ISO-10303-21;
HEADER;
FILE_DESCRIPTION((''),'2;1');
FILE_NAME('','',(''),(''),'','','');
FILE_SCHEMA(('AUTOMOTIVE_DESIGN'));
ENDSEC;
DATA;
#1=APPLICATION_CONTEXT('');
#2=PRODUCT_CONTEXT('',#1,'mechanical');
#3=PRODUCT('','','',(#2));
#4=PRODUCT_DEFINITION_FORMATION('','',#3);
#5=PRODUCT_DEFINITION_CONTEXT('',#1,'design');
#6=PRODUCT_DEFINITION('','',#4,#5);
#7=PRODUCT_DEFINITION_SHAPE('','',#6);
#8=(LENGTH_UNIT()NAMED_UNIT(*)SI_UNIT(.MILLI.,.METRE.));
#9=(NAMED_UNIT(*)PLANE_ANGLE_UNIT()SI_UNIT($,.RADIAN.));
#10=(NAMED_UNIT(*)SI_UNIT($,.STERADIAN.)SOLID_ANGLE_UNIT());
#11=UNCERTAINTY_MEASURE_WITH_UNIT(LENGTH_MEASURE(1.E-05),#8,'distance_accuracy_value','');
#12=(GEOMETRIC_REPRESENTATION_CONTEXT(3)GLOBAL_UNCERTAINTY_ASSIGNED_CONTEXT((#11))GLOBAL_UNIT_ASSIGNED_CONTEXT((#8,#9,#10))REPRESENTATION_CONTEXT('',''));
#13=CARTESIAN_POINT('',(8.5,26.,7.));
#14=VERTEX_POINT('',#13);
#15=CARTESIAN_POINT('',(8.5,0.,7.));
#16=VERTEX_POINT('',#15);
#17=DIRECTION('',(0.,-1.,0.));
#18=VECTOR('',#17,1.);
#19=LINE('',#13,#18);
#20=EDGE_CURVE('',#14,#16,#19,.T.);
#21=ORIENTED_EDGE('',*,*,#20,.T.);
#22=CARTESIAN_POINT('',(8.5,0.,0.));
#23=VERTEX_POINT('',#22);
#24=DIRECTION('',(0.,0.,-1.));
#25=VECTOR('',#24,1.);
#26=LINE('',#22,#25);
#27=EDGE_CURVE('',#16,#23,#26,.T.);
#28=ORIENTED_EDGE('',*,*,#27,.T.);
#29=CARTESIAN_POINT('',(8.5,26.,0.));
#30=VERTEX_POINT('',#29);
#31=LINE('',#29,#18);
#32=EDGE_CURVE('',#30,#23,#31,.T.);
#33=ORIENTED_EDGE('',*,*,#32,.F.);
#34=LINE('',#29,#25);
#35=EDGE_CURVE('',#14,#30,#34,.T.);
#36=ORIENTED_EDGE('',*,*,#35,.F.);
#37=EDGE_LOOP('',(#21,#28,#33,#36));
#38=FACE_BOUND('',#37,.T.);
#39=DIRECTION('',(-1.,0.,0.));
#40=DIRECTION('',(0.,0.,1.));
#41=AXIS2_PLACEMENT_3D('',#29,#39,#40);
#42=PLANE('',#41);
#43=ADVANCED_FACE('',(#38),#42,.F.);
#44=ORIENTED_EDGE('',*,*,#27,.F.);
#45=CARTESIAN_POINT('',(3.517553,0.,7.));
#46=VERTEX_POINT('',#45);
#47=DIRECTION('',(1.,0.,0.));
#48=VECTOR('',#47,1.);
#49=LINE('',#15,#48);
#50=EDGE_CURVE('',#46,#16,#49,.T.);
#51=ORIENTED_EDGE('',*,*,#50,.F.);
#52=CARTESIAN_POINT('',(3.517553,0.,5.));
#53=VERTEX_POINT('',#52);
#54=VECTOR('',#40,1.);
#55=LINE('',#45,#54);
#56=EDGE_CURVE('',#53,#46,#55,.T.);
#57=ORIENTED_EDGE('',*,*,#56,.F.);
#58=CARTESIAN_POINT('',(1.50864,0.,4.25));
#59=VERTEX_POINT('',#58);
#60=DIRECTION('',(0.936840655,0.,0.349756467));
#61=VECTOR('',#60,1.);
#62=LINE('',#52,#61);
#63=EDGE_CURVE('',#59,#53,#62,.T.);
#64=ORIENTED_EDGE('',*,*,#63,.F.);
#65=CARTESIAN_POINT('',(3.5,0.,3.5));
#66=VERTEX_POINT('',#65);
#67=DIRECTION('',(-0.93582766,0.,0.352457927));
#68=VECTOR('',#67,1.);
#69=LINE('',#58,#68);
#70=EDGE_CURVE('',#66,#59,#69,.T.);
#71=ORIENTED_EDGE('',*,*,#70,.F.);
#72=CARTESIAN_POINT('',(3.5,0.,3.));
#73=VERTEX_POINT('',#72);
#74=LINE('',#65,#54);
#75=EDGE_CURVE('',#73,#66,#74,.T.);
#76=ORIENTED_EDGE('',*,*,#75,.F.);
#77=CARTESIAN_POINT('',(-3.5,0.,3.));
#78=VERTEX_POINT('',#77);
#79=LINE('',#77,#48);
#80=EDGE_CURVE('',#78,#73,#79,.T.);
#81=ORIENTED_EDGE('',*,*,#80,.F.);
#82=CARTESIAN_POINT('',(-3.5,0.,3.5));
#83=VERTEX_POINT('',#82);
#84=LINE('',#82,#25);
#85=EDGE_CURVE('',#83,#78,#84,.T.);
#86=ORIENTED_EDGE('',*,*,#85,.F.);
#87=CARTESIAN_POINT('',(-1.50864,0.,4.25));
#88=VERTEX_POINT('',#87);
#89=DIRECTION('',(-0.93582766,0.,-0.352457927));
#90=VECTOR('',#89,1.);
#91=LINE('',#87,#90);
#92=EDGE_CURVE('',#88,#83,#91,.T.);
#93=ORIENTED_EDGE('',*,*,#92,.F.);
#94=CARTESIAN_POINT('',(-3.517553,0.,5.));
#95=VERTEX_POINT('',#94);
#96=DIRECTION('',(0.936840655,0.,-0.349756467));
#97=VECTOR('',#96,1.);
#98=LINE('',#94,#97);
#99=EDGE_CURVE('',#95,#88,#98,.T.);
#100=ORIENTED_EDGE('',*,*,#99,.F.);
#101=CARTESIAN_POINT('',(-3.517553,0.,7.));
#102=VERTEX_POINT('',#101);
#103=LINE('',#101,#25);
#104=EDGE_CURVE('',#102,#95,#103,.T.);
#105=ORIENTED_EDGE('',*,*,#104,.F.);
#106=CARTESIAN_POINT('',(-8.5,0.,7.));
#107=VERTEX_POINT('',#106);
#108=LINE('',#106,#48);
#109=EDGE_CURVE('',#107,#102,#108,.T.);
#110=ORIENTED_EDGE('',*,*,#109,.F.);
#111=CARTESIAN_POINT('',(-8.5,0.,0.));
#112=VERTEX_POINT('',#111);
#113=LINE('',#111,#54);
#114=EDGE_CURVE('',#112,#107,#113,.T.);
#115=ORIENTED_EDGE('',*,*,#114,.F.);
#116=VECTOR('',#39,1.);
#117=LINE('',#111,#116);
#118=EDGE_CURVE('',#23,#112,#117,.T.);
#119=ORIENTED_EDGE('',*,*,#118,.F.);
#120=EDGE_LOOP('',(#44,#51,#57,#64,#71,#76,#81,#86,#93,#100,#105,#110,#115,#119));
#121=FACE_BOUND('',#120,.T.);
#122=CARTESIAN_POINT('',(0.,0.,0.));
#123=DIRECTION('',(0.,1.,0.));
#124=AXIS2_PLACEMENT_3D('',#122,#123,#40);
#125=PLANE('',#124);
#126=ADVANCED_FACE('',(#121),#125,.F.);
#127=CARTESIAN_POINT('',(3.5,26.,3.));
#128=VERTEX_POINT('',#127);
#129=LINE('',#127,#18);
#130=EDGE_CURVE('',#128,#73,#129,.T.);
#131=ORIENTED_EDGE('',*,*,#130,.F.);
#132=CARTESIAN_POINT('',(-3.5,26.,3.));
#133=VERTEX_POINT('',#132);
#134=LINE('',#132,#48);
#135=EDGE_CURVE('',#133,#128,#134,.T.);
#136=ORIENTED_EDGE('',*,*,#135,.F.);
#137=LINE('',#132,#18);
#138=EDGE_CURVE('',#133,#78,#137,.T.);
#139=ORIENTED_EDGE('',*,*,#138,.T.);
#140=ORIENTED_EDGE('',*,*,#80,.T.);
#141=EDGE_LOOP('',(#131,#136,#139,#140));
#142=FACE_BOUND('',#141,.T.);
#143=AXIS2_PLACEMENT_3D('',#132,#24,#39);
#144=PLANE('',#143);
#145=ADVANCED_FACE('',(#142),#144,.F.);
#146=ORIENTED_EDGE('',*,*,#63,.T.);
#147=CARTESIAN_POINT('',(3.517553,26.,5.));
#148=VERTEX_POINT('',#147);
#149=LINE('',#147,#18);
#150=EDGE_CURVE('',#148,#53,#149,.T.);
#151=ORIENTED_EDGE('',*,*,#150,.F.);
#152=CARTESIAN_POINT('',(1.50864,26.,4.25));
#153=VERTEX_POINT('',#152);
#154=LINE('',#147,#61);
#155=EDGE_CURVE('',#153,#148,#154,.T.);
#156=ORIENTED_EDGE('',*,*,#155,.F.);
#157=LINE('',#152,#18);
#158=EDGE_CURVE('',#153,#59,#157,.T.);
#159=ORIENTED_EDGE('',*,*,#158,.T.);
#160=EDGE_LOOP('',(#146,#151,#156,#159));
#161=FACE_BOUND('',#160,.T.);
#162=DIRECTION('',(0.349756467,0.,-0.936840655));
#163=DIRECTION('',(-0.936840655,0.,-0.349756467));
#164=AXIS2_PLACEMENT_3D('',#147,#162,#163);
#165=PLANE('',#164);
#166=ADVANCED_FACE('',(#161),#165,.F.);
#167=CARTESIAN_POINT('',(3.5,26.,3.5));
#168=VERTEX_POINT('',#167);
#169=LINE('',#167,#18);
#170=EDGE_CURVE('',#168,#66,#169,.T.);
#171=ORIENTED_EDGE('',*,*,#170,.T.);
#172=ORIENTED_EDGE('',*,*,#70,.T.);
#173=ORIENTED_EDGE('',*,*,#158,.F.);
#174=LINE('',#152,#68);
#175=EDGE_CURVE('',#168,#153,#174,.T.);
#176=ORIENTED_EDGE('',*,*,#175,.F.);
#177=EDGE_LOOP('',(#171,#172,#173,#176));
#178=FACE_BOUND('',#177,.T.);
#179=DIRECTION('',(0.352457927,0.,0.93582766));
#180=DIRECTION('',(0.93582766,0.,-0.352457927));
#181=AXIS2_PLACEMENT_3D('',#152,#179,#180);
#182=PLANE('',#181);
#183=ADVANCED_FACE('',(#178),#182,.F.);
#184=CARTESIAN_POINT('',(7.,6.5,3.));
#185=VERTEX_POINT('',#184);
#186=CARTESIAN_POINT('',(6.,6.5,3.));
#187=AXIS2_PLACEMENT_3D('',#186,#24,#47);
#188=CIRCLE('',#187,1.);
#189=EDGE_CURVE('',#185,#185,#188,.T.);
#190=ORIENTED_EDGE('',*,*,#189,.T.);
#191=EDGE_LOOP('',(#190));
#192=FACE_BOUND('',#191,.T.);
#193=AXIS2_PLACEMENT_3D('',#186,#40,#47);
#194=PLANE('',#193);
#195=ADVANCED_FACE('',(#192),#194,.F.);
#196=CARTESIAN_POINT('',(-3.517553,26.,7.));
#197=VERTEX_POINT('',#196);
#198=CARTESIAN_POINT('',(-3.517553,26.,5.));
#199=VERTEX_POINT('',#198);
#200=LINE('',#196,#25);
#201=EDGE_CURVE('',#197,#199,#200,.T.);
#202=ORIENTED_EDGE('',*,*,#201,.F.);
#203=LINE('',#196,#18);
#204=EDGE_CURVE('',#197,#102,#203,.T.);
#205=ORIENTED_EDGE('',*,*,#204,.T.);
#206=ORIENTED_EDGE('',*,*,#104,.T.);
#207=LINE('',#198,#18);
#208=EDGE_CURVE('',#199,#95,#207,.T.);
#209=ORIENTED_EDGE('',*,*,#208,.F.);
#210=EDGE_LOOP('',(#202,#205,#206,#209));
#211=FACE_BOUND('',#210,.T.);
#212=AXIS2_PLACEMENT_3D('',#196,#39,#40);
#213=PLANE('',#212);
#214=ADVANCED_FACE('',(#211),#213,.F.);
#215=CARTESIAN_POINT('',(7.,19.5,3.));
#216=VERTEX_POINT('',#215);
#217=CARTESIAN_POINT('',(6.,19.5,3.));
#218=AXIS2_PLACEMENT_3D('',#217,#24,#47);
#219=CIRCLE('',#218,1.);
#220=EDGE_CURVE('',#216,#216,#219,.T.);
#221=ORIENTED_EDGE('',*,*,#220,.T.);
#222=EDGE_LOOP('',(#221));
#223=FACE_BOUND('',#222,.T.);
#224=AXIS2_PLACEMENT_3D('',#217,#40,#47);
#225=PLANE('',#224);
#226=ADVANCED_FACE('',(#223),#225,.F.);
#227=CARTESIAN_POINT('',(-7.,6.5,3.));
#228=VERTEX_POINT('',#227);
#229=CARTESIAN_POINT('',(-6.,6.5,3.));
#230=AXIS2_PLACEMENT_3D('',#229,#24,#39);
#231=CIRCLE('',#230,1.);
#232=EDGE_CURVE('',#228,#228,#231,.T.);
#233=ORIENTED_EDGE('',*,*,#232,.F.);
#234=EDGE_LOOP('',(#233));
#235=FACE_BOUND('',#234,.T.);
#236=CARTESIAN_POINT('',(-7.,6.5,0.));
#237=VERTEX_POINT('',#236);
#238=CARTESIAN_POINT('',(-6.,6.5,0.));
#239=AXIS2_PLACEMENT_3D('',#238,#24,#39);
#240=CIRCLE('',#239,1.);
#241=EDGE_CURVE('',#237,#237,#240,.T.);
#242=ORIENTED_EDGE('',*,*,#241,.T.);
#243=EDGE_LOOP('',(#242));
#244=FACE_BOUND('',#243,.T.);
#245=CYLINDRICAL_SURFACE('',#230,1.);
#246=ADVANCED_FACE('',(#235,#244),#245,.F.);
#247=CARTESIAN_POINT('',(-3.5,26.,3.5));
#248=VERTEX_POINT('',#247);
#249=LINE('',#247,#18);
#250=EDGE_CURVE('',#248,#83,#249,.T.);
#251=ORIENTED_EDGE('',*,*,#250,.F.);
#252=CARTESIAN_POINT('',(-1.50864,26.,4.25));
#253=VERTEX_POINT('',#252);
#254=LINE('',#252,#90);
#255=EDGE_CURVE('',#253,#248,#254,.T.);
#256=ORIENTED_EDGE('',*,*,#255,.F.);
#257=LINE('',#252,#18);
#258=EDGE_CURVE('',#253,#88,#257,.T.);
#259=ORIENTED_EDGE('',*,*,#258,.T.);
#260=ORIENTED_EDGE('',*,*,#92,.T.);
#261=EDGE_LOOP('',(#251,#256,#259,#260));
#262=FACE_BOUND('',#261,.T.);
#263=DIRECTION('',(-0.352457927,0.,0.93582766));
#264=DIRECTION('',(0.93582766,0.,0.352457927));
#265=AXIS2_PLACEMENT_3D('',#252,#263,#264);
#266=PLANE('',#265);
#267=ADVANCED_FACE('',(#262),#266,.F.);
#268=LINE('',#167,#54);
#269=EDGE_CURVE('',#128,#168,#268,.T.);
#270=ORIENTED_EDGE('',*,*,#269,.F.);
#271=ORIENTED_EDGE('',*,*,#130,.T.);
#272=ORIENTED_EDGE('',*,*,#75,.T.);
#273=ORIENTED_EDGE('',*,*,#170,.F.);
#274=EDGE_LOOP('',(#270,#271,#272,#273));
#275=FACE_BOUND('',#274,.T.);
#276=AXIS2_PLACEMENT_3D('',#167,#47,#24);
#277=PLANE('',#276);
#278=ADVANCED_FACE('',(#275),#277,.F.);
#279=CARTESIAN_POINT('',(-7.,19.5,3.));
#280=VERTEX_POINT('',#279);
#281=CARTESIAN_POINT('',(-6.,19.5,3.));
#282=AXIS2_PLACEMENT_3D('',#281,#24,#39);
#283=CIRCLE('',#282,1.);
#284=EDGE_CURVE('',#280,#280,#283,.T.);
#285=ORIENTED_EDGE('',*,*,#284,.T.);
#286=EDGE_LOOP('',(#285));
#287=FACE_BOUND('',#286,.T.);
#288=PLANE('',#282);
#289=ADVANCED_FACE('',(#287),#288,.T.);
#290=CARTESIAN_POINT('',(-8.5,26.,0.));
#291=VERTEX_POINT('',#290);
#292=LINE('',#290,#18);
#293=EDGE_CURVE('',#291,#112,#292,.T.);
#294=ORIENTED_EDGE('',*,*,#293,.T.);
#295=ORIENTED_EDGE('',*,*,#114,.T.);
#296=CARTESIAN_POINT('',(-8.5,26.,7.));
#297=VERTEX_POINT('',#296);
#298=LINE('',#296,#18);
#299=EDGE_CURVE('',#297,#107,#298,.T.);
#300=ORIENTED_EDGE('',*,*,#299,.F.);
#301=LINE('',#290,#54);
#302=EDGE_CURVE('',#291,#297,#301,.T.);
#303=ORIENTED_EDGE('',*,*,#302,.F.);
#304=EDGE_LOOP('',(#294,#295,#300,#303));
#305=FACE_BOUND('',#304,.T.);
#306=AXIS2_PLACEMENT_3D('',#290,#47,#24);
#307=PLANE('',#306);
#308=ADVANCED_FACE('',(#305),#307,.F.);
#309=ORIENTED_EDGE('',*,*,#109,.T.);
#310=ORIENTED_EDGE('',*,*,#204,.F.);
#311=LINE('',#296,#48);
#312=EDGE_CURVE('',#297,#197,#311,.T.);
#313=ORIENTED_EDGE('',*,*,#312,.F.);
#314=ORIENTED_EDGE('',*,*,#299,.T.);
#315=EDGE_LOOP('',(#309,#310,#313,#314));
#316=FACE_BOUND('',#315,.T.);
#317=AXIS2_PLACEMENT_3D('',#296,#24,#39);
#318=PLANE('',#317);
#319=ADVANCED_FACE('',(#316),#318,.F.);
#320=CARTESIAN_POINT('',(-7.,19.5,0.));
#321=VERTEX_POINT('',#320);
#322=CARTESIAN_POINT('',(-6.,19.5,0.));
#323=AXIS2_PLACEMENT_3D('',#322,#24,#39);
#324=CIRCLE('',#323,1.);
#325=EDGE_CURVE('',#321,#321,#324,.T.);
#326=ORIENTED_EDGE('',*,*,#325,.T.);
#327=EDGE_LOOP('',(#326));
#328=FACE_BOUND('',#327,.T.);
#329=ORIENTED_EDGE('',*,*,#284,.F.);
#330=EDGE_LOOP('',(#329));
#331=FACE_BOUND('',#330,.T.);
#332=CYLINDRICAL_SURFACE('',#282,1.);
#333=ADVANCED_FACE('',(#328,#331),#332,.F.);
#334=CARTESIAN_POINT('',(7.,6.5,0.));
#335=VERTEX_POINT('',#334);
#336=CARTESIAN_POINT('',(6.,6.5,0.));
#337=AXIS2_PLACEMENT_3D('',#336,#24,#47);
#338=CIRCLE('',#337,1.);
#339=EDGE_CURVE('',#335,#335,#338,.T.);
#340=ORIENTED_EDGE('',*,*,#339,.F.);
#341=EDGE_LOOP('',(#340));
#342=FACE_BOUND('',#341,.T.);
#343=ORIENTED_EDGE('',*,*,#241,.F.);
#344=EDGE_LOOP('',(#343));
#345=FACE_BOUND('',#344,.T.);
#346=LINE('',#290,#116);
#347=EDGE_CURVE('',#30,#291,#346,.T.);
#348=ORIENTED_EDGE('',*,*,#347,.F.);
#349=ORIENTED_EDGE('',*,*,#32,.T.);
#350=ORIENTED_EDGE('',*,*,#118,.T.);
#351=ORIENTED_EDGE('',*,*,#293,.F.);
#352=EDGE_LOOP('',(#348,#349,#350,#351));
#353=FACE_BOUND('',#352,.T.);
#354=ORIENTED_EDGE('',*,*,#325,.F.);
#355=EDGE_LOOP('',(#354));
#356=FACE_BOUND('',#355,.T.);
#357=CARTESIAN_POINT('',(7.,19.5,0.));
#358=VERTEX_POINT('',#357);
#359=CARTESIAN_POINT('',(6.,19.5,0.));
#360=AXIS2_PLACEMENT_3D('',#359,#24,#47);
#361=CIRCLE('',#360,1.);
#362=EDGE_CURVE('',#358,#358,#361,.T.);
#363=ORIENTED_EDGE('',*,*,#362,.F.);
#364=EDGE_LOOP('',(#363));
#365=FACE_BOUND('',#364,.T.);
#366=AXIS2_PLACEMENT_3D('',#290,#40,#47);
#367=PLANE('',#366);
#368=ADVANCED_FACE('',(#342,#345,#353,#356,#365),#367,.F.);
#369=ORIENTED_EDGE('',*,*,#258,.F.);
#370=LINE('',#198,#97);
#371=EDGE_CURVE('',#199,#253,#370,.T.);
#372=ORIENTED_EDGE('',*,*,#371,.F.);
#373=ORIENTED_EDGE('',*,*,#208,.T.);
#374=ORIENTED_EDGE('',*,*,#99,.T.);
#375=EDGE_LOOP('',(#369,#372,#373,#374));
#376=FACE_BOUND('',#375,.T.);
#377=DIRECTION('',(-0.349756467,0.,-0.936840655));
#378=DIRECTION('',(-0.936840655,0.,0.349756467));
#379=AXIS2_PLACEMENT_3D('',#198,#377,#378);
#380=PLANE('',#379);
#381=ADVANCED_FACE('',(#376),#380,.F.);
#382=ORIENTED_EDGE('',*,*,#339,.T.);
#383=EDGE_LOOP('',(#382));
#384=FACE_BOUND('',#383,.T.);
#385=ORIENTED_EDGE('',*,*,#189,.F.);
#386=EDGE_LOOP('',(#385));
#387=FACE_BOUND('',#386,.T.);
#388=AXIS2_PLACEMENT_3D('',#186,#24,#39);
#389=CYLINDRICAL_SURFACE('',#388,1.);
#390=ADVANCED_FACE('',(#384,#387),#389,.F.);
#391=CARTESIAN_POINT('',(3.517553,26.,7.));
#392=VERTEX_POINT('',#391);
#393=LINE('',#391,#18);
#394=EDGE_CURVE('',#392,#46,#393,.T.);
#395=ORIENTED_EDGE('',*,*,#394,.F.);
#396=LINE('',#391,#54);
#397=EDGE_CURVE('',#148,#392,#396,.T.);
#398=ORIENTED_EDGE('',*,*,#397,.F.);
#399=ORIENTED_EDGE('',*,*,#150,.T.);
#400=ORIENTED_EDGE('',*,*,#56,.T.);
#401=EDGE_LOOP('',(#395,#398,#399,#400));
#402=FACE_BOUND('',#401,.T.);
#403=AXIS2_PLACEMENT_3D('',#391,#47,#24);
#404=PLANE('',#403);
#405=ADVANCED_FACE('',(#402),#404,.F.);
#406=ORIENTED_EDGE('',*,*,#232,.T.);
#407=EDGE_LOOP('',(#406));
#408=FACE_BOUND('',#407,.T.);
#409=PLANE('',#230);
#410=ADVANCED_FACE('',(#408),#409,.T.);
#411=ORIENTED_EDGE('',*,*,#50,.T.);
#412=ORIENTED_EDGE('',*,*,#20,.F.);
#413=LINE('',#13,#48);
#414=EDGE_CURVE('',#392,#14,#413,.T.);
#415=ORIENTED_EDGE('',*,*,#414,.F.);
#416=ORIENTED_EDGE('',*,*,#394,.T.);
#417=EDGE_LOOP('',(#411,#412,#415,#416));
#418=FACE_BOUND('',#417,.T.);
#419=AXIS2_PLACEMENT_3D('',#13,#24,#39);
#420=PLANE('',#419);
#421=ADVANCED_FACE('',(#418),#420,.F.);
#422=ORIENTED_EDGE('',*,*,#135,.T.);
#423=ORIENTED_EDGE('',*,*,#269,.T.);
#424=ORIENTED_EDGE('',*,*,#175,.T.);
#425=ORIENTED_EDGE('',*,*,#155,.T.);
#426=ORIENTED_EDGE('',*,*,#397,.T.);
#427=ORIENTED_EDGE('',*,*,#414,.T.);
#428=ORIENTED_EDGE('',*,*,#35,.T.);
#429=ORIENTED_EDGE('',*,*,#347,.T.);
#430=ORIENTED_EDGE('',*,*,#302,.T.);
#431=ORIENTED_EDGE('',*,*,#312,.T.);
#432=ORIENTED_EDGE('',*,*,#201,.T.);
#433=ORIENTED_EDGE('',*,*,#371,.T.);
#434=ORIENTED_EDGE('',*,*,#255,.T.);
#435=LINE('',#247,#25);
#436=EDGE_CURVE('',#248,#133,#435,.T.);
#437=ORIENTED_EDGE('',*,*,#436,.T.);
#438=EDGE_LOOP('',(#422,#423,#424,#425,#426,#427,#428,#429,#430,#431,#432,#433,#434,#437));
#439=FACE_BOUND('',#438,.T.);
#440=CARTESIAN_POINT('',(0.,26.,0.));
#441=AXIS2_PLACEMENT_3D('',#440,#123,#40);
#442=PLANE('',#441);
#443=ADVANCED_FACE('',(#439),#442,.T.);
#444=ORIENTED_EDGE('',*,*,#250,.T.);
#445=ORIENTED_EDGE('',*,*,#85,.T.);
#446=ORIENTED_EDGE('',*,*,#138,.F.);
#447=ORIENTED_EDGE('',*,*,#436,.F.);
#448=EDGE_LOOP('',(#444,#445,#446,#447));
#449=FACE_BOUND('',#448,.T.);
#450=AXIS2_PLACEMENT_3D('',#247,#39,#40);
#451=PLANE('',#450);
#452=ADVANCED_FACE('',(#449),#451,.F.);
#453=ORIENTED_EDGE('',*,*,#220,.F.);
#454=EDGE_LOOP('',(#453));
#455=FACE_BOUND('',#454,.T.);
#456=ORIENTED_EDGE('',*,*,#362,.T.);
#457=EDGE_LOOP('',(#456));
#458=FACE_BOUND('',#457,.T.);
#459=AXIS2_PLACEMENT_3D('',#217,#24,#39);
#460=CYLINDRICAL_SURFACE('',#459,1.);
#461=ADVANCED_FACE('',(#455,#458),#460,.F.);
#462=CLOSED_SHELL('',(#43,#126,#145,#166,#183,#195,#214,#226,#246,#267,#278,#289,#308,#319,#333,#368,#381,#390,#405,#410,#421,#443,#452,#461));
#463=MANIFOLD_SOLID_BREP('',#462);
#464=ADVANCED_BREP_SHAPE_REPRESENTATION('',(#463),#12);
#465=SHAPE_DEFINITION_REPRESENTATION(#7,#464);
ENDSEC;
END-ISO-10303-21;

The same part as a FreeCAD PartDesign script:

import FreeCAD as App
import Part
import Sketcher

V = App.Vector
Q = App.Units.Quantity

doc = App.newDocument("Part")
body = doc.addObject("PartDesign::Body", "Body")

sketch1 = body.newObject("Sketcher::SketchObject", "Sketch")
sketch1.AttachmentSupport = (doc.getObject("XZ_Plane"), [""])
sketch1.MapMode = "FlatFace"
sketch1.addGeometry(Part.LineSegment(V(8.5, 0, 0), V(-8.5, 0, 0)), False)
sketch1.addGeometry(Part.LineSegment(V(-8.5, 0, 0), V(-8.5, 7, 0)), False)
sketch1.addGeometry(Part.LineSegment(V(-8.5, 7, 0), V(-3.5, 7, 0)), False)
sketch1.addGeometry(Part.LineSegment(V(-3.5, 7, 0), V(-3.5, 5, 0)), False)
sketch1.addGeometry(Part.LineSegment(V(-3.5, 5, 0), V(-1.5, 4.2, 0)), False)
sketch1.addGeometry(Part.LineSegment(V(-1.5, 4.2, 0), V(-3.5, 3.5, 0)), False)
sketch1.addGeometry(Part.LineSegment(V(-3.5, 3.5, 0), V(-3.5, 3, 0)), False)
sketch1.addGeometry(Part.LineSegment(V(-3.5, 3, 0), V(3.5, 3, 0)), False)
sketch1.addGeometry(Part.LineSegment(V(3.5, 3, 0), V(3.5, 3.5, 0)), False)
sketch1.addGeometry(Part.LineSegment(V(3.5, 3.5, 0), V(1.5, 4.2, 0)), False)
sketch1.addGeometry(Part.LineSegment(V(1.5, 4.2, 0), V(3.5, 5, 0)), False)
sketch1.addGeometry(Part.LineSegment(V(3.5, 5, 0), V(3.5, 7, 0)), False)
sketch1.addGeometry(Part.LineSegment(V(3.5, 7, 0), V(8.5, 7, 0)), False)
sketch1.addGeometry(Part.LineSegment(V(8.5, 7, 0), V(8.5, 0, 0)), False)
sketch1.addConstraint(Sketcher.Constraint("Coincident", 0, 2, 1, 1))
sketch1.addConstraint(Sketcher.Constraint("Coincident", 1, 2, 2, 1))
sketch1.addConstraint(Sketcher.Constraint("Coincident", 2, 2, 3, 1))
sketch1.addConstraint(Sketcher.Constraint("Coincident", 3, 2, 4, 1))
sketch1.addConstraint(Sketcher.Constraint("Coincident", 4, 2, 5, 1))
sketch1.addConstraint(Sketcher.Constraint("Coincident", 5, 2, 6, 1))
sketch1.addConstraint(Sketcher.Constraint("Coincident", 6, 2, 7, 1))
sketch1.addConstraint(Sketcher.Constraint("Coincident", 7, 2, 8, 1))
sketch1.addConstraint(Sketcher.Constraint("Coincident", 8, 2, 9, 1))
sketch1.addConstraint(Sketcher.Constraint("Coincident", 9, 2, 10, 1))
sketch1.addConstraint(Sketcher.Constraint("Coincident", 10, 2, 11, 1))
sketch1.addConstraint(Sketcher.Constraint("Coincident", 11, 2, 12, 1))
sketch1.addConstraint(Sketcher.Constraint("Coincident", 12, 2, 13, 1))
sketch1.addConstraint(Sketcher.Constraint("Coincident", 13, 2, 0, 1))
sketch1.addConstraint(Sketcher.Constraint("Horizontal", 0))
sketch1.addConstraint(Sketcher.Constraint("Vertical", 1))
sketch1.addConstraint(Sketcher.Constraint("Horizontal", 2))
sketch1.addConstraint(Sketcher.Constraint("Vertical", 3))
sketch1.addConstraint(Sketcher.Constraint("Vertical", 6))
sketch1.addConstraint(Sketcher.Constraint("Horizontal", 7))
sketch1.addConstraint(Sketcher.Constraint("Vertical", 8))
sketch1.addConstraint(Sketcher.Constraint("Vertical", 11))
sketch1.addConstraint(Sketcher.Constraint("Horizontal", 12))
sketch1.addConstraint(Sketcher.Constraint("Vertical", 13))
sketch1.addConstraint(Sketcher.Constraint("Symmetric", 0, 2, 13, 2, -1, 1))
sketch1.addConstraint(Sketcher.Constraint("Symmetric", 5, 2, 8, 2, -2))
sketch1.addConstraint(Sketcher.Constraint("Symmetric", 4, 2, 9, 2, -2))
sketch1.addConstraint(Sketcher.Constraint("Symmetric", 3, 2, 10, 2, -2))
sketch1.addConstraint(Sketcher.Constraint("Horizontal", 2, 2, 11, 2))
sketch1.addConstraint(Sketcher.Constraint("Equal", 7, 1))
sketch1.addConstraint(Sketcher.Constraint("DistanceX", 0, 2, 0, 1, Q("17 mm")))
sketch1.addConstraint(Sketcher.Constraint("DistanceX", 7, 1, 7, 2, Q("7 mm")))
sketch1.addConstraint(Sketcher.Constraint("DistanceY", 3, 2, 3, 1, Q("2 mm")))
sketch1.addConstraint(Sketcher.Constraint("DistanceY", 6, 2, 6, 1, Q("0.5 mm")))
sketch1.addConstraint(Sketcher.Constraint("DistanceY", -1, 1, 6, 2, Q("3 mm")))
sketch1.addConstraint(Sketcher.Constraint("DistanceY", -1, 1, 4, 2, Q("4.25 mm")))
sketch1.addConstraint(Sketcher.Constraint("Distance", 4, Q("2.144349 mm")))
sketch1.addConstraint(Sketcher.Constraint("DistanceX", 2, 1, 2, 2, Q("4.982447 mm")))
pad1 = body.newObject("PartDesign::Pad", "Pad")
pad1.Profile = sketch1
pad1.Length = 26
pad1.Reversed = True

sketch2 = body.newObject("Sketcher::SketchObject", "Sketch001")
sketch2.AttachmentSupport = (doc.getObject("XY_Plane"), [""])
sketch2.MapMode = "FlatFace"
sketch2.addGeometry(Part.Circle(V(-6, 19.5, 0), V(0, 0, 1), 1), False)
sketch2.addGeometry(Part.Circle(V(-6, 6.5, 0), V(0, 0, 1), 1), False)
sketch2.addGeometry(Part.Circle(V(6, 6.5, 0), V(0, 0, 1), 1), False)
sketch2.addGeometry(Part.Circle(V(6, 19.5, 0), V(0, 0, 1), 1), False)
sketch2.addConstraint(Sketcher.Constraint("Equal", 0, 1))
sketch2.addConstraint(Sketcher.Constraint("Equal", 1, 2))
sketch2.addConstraint(Sketcher.Constraint("Equal", 2, 3))
sketch2.addConstraint(Sketcher.Constraint("Symmetric", 1, 3, 2, 3, -2))
sketch2.addConstraint(Sketcher.Constraint("Symmetric", 0, 3, 3, 3, -2))
sketch2.addConstraint(Sketcher.Constraint("Vertical", 0, 3, 1, 3))
sketch2.addConstraint(Sketcher.Constraint("Diameter", 0, Q("2 mm")))
sketch2.addConstraint(Sketcher.Constraint("DistanceX", 0, 3, -1, 1, Q("6 mm")))
sketch2.addConstraint(Sketcher.Constraint("DistanceY", 1, 3, 0, 3, Q("13 mm")))
sketch2.addConstraint(Sketcher.Constraint("DistanceY", -1, 1, 0, 3, Q("19.5 mm")))
pocket1 = body.newObject("PartDesign::Pocket", "Pocket")
pocket1.Profile = sketch2
pocket1.Length = 3
pocket1.Reversed = True

doc.recompute()
